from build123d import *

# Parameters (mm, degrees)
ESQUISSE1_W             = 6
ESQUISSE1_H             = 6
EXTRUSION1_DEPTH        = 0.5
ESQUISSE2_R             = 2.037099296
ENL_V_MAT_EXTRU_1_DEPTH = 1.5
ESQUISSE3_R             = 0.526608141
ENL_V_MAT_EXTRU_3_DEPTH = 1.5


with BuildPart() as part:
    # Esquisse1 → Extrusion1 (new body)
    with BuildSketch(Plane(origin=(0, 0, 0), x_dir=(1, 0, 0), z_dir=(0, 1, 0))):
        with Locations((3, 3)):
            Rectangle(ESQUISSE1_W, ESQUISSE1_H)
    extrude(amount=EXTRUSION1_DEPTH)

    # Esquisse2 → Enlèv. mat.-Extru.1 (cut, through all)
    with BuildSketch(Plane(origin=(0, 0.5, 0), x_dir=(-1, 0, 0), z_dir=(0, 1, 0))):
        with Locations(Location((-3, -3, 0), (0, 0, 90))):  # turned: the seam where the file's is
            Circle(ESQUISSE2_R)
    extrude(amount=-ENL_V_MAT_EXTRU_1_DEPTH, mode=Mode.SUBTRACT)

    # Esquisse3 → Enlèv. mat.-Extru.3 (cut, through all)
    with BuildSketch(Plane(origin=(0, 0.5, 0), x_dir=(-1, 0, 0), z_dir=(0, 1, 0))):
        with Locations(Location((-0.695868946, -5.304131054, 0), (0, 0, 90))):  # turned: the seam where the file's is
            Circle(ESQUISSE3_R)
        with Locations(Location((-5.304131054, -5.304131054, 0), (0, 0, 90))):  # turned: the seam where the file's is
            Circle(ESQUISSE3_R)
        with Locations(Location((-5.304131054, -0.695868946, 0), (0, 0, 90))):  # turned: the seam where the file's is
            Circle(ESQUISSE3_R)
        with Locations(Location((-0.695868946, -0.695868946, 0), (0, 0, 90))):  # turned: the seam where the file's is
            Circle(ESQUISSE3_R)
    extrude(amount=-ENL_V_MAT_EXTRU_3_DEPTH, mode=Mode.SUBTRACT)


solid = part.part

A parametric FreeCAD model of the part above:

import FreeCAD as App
import Part
import Sketcher
Q = App.Units.Quantity


def add_polygon(sketch, points):
    """Adds a closed chain of lines whose ends are joined by coincident constraints."""
    first, n = sketch.GeometryCount, len(points)
    for a, b in zip(points, points[1:] + points[:1]):
        sketch.addGeometry(Part.LineSegment(App.Vector(*a, 0), App.Vector(*b, 0)), False)
    for i in range(n):
        sketch.addConstraint(Sketcher.Constraint("Coincident", first + i, 2, first + (i + 1) % n, 1))

doc = App.newDocument("Part")
body = doc.addObject("PartDesign::Body", "Body")

# Sketch on XZ plane
sketch1 = body.newObject("Sketcher::SketchObject", "Sketch")
sketch1.AttachmentSupport = (doc.getObject("XZ_Plane"), [""])
sketch1.MapMode = "FlatFace"
add_polygon(sketch1, [(0, -6), (0, 0), (6, 0), (6, -6)])  # lines 0-3
sketch1.addConstraint(Sketcher.Constraint("Vertical", 0))
sketch1.addConstraint(Sketcher.Constraint("Horizontal", 1))
sketch1.addConstraint(Sketcher.Constraint("Vertical", 2))
sketch1.addConstraint(Sketcher.Constraint("Horizontal", 3))
sketch1.addConstraint(Sketcher.Constraint("Coincident", 0, 2, -1, 1))
sketch1.addConstraint(Sketcher.Constraint("Equal", 3, 0))
sketch1.addConstraint(Sketcher.Constraint("DistanceX", 1, 1, 1, 2, Q("6 mm")))
pad1 = body.newObject("PartDesign::Pad", "Pad")
pad1.Profile = sketch1
pad1.Length = 0.5
pad1.Reversed = True

# Sketch on XZ plane
sketch2 = body.newObject("Sketcher::SketchObject", "Sketch001")
sketch2.AttachmentSupport = (doc.getObject("XZ_Plane"), [""])
sketch2.MapMode = "FlatFace"
sketch2.AttachmentOffset = App.Placement(App.Vector(0, 0, -0.5), App.Rotation())
sketch2.addGeometry(Part.Circle(App.Vector(3, -3, 0), App.Vector(0, 0, 1), 2), False)
sketch2.addConstraint(Sketcher.Constraint("DistanceX", -1, 1, 0, 3, Q("3 mm")))
sketch2.addConstraint(Sketcher.Constraint("DistanceY", 0, 3, -1, 1, Q("3 mm")))
sketch2.addConstraint(Sketcher.Constraint("Diameter", 0, Q("4.074199 mm")))
pocket1 = body.newObject("PartDesign::Pocket", "Pocket")
pocket1.Profile = sketch2
pocket1.Type = "ThroughAll"
pocket1.Reversed = True

# Sketch on XZ plane
sketch3 = body.newObject("Sketcher::SketchObject", "Sketch002")
sketch3.AttachmentSupport = (doc.getObject("XZ_Plane"), [""])
sketch3.MapMode = "FlatFace"
sketch3.AttachmentOffset = App.Placement(App.Vector(0, 0, -0.5), App.Rotation())
sketch3.addGeometry(Part.Circle(App.Vector(0.7, -5.3, 0), App.Vector(0, 0, 1), 0.5), False)
sketch3.addGeometry(Part.Circle(App.Vector(5.3, -5.3, 0), App.Vector(0, 0, 1), 0.5), False)
sketch3.addGeometry(Part.Circle(App.Vector(5.3, -0.7, 0), App.Vector(0, 0, 1), 0.5), False)
sketch3.addGeometry(Part.Circle(App.Vector(0.7, -0.7, 0), App.Vector(0, 0, 1), 0.5), False)
sketch3.addConstraint(Sketcher.Constraint("Equal", 0, 1))
sketch3.addConstraint(Sketcher.Constraint("Equal", 1, 2))
sketch3.addConstraint(Sketcher.Constraint("Equal", 2, 3))
sketch3.addConstraint(Sketcher.Constraint("Horizontal", 0, 3, 1, 3))
sketch3.addConstraint(Sketcher.Constraint("Horizontal", 2, 3, 3, 3))
sketch3.addConstraint(Sketcher.Constraint("Vertical", 1, 3, 2, 3))
sketch3.addConstraint(Sketcher.Constraint("Vertical", 0, 3, 3, 3))
sketch3.addConstraint(Sketcher.Constraint("Diameter", 0, Q("1.053216 mm")))
sketch3.addConstraint(Sketcher.Constraint("DistanceX", -1, 1, 0, 3, Q("0.695869 mm")))
sketch3.addConstraint(Sketcher.Constraint("DistanceY", 0, 3, -1, 1, Q("5.304131 mm")))
sketch3.addConstraint(Sketcher.Constraint("DistanceX", -1, 1, 1, 3, Q("5.304131 mm")))
sketch3.addConstraint(Sketcher.Constraint("DistanceY", 2, 3, -1, 1, Q("0.695869 mm")))
pocket2 = body.newObject("PartDesign::Pocket", "Pocket001")
pocket2.Profile = sketch3
pocket2.Type = "ThroughAll"
pocket2.Reversed = True

doc.recompute()
